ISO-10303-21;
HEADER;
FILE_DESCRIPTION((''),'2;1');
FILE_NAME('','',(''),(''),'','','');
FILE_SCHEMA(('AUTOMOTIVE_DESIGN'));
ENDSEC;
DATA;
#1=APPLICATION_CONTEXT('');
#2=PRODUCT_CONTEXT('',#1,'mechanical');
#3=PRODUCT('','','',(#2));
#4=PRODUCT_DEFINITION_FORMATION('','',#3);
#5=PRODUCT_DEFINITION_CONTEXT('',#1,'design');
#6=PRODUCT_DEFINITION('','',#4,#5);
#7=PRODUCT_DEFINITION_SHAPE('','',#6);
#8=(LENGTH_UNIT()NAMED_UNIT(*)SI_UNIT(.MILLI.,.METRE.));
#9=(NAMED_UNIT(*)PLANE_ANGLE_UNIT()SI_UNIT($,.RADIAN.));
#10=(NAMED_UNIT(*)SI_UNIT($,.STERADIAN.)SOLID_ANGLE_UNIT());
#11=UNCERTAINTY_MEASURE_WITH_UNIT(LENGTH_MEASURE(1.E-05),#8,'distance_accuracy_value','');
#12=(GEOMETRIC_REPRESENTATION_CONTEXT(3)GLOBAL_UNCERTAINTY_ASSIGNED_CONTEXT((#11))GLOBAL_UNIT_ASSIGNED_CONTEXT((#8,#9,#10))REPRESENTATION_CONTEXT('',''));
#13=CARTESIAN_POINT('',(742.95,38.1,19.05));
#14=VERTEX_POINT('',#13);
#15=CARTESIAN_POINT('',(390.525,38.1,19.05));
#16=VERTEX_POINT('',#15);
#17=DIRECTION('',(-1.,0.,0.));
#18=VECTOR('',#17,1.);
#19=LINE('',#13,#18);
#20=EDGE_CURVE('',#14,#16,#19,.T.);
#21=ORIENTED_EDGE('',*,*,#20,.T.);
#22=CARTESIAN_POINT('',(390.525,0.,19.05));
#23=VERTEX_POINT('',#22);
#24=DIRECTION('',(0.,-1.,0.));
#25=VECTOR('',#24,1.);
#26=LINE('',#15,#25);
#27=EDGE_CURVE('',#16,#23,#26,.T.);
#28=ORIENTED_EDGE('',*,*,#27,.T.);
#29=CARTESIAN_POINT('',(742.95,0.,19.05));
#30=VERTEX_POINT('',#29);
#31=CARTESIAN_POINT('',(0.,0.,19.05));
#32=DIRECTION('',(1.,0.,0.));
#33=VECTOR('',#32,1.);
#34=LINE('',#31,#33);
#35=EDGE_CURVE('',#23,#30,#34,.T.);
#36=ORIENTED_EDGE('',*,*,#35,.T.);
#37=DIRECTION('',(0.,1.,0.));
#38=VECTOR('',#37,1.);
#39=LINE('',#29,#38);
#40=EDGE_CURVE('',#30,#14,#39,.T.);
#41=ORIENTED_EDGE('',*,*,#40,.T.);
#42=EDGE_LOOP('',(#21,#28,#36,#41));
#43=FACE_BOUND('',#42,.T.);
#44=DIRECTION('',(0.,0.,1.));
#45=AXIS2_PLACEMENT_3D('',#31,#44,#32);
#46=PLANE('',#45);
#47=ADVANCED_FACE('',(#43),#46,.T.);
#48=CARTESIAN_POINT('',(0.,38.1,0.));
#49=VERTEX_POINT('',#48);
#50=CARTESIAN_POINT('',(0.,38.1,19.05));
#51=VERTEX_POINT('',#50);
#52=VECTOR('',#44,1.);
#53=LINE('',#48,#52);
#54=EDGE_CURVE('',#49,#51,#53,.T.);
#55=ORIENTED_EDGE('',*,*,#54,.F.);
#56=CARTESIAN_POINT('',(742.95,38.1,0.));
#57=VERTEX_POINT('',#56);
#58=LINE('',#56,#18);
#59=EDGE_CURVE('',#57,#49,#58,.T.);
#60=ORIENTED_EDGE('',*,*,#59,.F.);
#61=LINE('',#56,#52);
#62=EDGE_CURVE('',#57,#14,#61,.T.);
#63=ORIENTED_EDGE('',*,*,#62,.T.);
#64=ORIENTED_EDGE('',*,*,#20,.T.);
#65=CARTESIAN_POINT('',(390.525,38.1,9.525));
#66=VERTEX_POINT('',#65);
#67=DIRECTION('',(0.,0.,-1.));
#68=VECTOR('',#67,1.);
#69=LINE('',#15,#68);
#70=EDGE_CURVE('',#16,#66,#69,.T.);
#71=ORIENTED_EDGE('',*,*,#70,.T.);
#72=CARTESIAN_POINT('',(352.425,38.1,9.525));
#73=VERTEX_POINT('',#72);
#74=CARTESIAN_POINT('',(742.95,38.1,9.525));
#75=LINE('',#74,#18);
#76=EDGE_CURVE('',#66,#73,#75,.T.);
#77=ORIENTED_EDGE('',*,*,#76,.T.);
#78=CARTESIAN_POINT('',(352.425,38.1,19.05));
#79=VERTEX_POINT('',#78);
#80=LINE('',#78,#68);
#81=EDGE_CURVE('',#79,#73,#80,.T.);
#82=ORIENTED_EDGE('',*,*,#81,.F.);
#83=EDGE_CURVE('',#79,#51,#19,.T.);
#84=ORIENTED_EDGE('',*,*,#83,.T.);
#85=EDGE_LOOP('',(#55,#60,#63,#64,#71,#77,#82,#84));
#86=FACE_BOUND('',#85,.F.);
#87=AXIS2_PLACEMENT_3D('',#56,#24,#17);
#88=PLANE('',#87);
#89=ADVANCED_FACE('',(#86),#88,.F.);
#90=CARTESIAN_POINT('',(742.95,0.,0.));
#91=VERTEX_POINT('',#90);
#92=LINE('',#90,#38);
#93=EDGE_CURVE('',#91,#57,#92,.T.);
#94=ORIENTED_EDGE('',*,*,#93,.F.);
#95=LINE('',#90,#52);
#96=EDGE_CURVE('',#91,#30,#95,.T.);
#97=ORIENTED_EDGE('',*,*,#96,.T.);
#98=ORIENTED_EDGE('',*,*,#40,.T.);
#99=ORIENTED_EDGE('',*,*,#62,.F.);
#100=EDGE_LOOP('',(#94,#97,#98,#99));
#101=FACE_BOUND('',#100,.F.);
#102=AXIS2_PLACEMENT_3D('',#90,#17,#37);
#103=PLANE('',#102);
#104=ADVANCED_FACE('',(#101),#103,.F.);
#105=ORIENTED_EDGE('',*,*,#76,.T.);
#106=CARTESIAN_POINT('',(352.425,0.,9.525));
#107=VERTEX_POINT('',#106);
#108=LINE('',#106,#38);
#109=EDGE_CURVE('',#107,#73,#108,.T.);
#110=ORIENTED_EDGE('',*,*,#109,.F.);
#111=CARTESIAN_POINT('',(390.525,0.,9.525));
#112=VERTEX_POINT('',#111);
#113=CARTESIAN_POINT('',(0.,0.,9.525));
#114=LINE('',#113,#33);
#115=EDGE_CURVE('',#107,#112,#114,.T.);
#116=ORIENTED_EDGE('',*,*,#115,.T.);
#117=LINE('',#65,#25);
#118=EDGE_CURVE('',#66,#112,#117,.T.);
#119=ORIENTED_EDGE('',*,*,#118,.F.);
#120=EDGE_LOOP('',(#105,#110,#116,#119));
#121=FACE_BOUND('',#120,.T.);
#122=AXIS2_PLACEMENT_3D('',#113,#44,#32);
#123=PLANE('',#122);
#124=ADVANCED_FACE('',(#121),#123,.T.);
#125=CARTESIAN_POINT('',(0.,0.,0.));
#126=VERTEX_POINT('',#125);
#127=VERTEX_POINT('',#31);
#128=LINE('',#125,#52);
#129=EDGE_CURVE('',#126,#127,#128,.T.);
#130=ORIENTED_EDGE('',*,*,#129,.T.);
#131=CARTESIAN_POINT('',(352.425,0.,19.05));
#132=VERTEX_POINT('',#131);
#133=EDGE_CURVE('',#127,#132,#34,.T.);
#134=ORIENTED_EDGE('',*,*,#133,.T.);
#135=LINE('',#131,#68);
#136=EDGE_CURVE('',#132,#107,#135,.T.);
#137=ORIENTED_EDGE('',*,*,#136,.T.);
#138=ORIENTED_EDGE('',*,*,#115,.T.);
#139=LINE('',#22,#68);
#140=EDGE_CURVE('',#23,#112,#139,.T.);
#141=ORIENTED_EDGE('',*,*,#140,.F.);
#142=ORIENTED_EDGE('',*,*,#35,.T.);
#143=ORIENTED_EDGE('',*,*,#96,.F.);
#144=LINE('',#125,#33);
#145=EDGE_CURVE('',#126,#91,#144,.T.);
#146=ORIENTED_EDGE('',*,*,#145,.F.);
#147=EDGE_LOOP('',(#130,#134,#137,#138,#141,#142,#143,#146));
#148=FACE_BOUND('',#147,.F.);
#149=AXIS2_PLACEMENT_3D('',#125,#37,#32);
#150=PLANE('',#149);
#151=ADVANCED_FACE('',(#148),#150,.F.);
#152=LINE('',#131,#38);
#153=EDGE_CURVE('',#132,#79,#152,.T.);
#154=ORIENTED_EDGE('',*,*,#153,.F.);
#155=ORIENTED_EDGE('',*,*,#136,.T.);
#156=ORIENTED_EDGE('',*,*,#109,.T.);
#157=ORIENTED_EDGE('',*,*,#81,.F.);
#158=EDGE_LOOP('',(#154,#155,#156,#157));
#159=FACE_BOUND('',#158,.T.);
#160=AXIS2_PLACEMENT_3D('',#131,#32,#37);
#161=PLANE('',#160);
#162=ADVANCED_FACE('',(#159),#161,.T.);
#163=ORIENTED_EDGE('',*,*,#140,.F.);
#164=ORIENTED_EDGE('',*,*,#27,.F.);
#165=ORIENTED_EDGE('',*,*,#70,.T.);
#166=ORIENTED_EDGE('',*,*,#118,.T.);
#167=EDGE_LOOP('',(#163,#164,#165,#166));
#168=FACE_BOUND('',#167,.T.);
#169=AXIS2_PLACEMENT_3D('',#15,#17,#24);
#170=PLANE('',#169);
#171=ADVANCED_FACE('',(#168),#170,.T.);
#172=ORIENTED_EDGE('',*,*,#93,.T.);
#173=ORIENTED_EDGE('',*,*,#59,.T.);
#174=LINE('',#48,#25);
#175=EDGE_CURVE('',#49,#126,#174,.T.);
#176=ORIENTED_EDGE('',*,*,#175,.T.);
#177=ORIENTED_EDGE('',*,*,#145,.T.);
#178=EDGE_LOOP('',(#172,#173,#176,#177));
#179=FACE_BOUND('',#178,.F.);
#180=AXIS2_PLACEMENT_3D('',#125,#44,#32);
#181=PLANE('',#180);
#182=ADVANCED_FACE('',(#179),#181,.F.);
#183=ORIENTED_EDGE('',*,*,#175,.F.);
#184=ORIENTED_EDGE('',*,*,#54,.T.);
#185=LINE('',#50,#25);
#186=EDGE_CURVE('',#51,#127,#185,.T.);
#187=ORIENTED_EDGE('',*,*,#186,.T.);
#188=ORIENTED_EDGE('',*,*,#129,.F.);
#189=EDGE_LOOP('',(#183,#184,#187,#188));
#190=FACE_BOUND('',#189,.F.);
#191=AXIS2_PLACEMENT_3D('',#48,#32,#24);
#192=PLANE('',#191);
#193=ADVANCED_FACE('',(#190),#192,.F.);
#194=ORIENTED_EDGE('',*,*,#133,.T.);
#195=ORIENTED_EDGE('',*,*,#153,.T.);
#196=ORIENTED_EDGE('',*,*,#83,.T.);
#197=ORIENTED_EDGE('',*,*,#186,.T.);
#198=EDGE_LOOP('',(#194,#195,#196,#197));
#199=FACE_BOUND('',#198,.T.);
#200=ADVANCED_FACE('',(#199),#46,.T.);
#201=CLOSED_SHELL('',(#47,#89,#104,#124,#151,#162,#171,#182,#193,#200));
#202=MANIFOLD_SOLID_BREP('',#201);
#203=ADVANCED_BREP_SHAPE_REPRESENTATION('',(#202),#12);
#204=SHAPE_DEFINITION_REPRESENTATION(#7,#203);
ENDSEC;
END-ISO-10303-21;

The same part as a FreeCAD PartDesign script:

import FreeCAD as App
import Part
import Sketcher
from FreeCAD import Vector
Q = App.Units.Quantity


def add_polygon(sketch, points):
    """Adds a closed chain of lines whose ends are joined by coincident constraints."""
    first, n = sketch.GeometryCount, len(points)
    for a, b in zip(points, points[1:] + points[:1]):
        sketch.addGeometry(Part.LineSegment(App.Vector(*a, 0), App.Vector(*b, 0)), False)
    for i in range(n):
        sketch.addConstraint(Sketcher.Constraint("Coincident", first + i, 2, first + (i + 1) % n, 1))

doc = App.newDocument("Part")
params = doc.addObject("Spreadsheet::Sheet", "Params")
for row, (alias, value) in enumerate([
    ("sketch1_height", "1.5 in"),
    ("sketch1_width", "29.25 in"),
    ("pad1_length", "0.75 in"),
    ("sketch2_width", "1.5 in"),
    ("pocket1_length", "0.375 in"),
], start=1):
    params.set(f"A{row}", alias)
    params.set(f"B{row}", "=" + value)
    params.setAlias(f"B{row}", alias)

body = doc.addObject("PartDesign::Body", "Body")

sketch1 = body.newObject("Sketcher::SketchObject", "Sketch")
sketch1.AttachmentSupport = (doc.getObject("XY_Plane"), [""])
sketch1.MapMode = "FlatFace"
add_polygon(sketch1, [(0, 38), (0, 0), (743, 0), (743, 38)])
sketch1.addConstraint(Sketcher.Constraint("Vertical", 0))
sketch1.addConstraint(Sketcher.Constraint("Horizontal", 1))
sketch1.addConstraint(Sketcher.Constraint("Vertical", 2))
sketch1.addConstraint(Sketcher.Constraint("Horizontal", 3))
sketch1.addConstraint(Sketcher.Constraint("Coincident", 0, 2, -1, 1))
sketch1.addConstraint(Sketcher.Constraint("DistanceY", 0, 2, 0, 1, Q("1.5 in")))
sketch1.addConstraint(Sketcher.Constraint("DistanceX", 1, 1, 1, 2, Q("29.25 in")))
sketch1.setExpression("Constraints[9]", "Params.sketch1_height")
sketch1.setExpression("Constraints[10]", "Params.sketch1_width")
pad1 = body.newObject("PartDesign::Pad", "Pad")
pad1.Profile = sketch1
pad1.setExpression("Length", "Params.pad1_length")

sketch2 = body.newObject("Sketcher::SketchObject", "Sketch001")
sketch2.AttachmentSupport = (doc.getObject("XY_Plane"), [""])
sketch2.MapMode = "FlatFace"
sketch2.AttachmentOffset = App.Placement(Vector(0, 0, 0.75 * 25.4), App.Rotation())
add_polygon(sketch2, [(391, 0), (391, 38), (352, 38), (352, 0)])
sketch2.addConstraint(Sketcher.Constraint("Vertical", 0))
sketch2.addConstraint(Sketcher.Constraint("Horizontal", 1))
sketch2.addConstraint(Sketcher.Constraint("Vertical", 2))
sketch2.addConstraint(Sketcher.Constraint("Horizontal", 3))
sketch2.addConstraint(Sketcher.Constraint("PointOnObject", 2, 2, -1))
sketch2.addConstraint(Sketcher.Constraint("Equal", 3, 0))
sketch2.addConstraint(Sketcher.Constraint("DistanceX", 1, 2, 1, 1, Q("1.5 in")))
sketch2.addConstraint(Sketcher.Constraint("DistanceX", -1, 1, 1, 2, Q("13.875 in")))
sketch2.setExpression("Constraints[10]", "Params.sketch2_width")
pocket1 = body.newObject("PartDesign::Pocket", "Pocket")
pocket1.Profile = sketch2
pocket1.setExpression("Length", "Params.pocket1_length")

doc.recompute()
